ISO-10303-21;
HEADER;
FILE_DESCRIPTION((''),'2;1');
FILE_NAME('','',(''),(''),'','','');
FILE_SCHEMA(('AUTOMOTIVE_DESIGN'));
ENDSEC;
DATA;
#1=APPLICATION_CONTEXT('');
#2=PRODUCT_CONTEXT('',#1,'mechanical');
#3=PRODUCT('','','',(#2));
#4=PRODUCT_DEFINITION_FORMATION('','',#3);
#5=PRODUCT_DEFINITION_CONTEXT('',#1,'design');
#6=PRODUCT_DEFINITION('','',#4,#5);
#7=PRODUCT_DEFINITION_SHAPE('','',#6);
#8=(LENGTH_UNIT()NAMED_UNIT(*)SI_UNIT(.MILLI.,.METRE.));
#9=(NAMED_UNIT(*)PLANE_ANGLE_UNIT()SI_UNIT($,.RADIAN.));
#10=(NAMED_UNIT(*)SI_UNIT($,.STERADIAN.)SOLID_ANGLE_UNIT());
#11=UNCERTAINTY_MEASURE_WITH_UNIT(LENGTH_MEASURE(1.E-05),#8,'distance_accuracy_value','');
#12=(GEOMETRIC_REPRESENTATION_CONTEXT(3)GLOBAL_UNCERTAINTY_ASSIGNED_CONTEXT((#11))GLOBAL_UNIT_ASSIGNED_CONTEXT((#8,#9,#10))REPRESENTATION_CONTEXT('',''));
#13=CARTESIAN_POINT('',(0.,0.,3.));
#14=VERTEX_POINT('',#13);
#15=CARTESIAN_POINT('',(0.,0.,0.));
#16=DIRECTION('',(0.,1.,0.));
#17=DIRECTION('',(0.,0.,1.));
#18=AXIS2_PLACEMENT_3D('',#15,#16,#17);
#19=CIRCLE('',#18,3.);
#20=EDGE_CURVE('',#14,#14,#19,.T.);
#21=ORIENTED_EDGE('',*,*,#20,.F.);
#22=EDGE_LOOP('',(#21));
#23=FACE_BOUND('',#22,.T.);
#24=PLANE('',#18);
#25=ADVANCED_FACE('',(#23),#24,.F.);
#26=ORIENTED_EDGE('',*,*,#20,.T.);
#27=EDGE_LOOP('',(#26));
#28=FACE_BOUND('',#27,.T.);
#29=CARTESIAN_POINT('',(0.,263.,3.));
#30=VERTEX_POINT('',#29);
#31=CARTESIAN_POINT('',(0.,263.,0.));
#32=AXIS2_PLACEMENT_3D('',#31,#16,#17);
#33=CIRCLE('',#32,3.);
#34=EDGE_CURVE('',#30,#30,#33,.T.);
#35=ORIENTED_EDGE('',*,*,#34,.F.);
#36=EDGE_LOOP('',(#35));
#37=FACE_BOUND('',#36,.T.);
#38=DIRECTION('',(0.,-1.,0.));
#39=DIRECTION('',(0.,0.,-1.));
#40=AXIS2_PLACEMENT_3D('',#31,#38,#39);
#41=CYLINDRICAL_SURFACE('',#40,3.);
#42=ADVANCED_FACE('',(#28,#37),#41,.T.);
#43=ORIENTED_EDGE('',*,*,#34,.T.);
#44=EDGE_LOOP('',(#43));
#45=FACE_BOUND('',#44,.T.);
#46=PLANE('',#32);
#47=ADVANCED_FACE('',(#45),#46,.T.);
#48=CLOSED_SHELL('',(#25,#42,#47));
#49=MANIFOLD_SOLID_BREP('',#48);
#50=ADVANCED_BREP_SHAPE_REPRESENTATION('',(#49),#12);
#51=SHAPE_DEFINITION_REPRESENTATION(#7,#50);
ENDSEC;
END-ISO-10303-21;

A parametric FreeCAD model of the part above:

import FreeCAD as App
import Part
import Sketcher
from FreeCAD import Vector

doc = App.newDocument("Part")
body = doc.addObject("PartDesign::Body", "Body")

# Sketch on XZ plane
sketch1 = body.newObject("Sketcher::SketchObject", "Sketch")
sketch1.AttachmentSupport = (doc.getObject("XZ_Plane"), [""])
sketch1.MapMode = "FlatFace"
sketch1.addGeometry(Part.Circle(Vector(0, 0, 0), Vector(0, 0, 1), 3), False)
sketch1.addConstraint([
    Sketcher.Constraint("Coincident", 0, 3, -1, 1),
    Sketcher.Constraint("Diameter", 0, 6.0),
])
pad1 = body.newObject("PartDesign::Pad", "Pad")
pad1.Profile = sketch1
pad1.Length = 263
pad1.Reversed = True

doc.recompute()
